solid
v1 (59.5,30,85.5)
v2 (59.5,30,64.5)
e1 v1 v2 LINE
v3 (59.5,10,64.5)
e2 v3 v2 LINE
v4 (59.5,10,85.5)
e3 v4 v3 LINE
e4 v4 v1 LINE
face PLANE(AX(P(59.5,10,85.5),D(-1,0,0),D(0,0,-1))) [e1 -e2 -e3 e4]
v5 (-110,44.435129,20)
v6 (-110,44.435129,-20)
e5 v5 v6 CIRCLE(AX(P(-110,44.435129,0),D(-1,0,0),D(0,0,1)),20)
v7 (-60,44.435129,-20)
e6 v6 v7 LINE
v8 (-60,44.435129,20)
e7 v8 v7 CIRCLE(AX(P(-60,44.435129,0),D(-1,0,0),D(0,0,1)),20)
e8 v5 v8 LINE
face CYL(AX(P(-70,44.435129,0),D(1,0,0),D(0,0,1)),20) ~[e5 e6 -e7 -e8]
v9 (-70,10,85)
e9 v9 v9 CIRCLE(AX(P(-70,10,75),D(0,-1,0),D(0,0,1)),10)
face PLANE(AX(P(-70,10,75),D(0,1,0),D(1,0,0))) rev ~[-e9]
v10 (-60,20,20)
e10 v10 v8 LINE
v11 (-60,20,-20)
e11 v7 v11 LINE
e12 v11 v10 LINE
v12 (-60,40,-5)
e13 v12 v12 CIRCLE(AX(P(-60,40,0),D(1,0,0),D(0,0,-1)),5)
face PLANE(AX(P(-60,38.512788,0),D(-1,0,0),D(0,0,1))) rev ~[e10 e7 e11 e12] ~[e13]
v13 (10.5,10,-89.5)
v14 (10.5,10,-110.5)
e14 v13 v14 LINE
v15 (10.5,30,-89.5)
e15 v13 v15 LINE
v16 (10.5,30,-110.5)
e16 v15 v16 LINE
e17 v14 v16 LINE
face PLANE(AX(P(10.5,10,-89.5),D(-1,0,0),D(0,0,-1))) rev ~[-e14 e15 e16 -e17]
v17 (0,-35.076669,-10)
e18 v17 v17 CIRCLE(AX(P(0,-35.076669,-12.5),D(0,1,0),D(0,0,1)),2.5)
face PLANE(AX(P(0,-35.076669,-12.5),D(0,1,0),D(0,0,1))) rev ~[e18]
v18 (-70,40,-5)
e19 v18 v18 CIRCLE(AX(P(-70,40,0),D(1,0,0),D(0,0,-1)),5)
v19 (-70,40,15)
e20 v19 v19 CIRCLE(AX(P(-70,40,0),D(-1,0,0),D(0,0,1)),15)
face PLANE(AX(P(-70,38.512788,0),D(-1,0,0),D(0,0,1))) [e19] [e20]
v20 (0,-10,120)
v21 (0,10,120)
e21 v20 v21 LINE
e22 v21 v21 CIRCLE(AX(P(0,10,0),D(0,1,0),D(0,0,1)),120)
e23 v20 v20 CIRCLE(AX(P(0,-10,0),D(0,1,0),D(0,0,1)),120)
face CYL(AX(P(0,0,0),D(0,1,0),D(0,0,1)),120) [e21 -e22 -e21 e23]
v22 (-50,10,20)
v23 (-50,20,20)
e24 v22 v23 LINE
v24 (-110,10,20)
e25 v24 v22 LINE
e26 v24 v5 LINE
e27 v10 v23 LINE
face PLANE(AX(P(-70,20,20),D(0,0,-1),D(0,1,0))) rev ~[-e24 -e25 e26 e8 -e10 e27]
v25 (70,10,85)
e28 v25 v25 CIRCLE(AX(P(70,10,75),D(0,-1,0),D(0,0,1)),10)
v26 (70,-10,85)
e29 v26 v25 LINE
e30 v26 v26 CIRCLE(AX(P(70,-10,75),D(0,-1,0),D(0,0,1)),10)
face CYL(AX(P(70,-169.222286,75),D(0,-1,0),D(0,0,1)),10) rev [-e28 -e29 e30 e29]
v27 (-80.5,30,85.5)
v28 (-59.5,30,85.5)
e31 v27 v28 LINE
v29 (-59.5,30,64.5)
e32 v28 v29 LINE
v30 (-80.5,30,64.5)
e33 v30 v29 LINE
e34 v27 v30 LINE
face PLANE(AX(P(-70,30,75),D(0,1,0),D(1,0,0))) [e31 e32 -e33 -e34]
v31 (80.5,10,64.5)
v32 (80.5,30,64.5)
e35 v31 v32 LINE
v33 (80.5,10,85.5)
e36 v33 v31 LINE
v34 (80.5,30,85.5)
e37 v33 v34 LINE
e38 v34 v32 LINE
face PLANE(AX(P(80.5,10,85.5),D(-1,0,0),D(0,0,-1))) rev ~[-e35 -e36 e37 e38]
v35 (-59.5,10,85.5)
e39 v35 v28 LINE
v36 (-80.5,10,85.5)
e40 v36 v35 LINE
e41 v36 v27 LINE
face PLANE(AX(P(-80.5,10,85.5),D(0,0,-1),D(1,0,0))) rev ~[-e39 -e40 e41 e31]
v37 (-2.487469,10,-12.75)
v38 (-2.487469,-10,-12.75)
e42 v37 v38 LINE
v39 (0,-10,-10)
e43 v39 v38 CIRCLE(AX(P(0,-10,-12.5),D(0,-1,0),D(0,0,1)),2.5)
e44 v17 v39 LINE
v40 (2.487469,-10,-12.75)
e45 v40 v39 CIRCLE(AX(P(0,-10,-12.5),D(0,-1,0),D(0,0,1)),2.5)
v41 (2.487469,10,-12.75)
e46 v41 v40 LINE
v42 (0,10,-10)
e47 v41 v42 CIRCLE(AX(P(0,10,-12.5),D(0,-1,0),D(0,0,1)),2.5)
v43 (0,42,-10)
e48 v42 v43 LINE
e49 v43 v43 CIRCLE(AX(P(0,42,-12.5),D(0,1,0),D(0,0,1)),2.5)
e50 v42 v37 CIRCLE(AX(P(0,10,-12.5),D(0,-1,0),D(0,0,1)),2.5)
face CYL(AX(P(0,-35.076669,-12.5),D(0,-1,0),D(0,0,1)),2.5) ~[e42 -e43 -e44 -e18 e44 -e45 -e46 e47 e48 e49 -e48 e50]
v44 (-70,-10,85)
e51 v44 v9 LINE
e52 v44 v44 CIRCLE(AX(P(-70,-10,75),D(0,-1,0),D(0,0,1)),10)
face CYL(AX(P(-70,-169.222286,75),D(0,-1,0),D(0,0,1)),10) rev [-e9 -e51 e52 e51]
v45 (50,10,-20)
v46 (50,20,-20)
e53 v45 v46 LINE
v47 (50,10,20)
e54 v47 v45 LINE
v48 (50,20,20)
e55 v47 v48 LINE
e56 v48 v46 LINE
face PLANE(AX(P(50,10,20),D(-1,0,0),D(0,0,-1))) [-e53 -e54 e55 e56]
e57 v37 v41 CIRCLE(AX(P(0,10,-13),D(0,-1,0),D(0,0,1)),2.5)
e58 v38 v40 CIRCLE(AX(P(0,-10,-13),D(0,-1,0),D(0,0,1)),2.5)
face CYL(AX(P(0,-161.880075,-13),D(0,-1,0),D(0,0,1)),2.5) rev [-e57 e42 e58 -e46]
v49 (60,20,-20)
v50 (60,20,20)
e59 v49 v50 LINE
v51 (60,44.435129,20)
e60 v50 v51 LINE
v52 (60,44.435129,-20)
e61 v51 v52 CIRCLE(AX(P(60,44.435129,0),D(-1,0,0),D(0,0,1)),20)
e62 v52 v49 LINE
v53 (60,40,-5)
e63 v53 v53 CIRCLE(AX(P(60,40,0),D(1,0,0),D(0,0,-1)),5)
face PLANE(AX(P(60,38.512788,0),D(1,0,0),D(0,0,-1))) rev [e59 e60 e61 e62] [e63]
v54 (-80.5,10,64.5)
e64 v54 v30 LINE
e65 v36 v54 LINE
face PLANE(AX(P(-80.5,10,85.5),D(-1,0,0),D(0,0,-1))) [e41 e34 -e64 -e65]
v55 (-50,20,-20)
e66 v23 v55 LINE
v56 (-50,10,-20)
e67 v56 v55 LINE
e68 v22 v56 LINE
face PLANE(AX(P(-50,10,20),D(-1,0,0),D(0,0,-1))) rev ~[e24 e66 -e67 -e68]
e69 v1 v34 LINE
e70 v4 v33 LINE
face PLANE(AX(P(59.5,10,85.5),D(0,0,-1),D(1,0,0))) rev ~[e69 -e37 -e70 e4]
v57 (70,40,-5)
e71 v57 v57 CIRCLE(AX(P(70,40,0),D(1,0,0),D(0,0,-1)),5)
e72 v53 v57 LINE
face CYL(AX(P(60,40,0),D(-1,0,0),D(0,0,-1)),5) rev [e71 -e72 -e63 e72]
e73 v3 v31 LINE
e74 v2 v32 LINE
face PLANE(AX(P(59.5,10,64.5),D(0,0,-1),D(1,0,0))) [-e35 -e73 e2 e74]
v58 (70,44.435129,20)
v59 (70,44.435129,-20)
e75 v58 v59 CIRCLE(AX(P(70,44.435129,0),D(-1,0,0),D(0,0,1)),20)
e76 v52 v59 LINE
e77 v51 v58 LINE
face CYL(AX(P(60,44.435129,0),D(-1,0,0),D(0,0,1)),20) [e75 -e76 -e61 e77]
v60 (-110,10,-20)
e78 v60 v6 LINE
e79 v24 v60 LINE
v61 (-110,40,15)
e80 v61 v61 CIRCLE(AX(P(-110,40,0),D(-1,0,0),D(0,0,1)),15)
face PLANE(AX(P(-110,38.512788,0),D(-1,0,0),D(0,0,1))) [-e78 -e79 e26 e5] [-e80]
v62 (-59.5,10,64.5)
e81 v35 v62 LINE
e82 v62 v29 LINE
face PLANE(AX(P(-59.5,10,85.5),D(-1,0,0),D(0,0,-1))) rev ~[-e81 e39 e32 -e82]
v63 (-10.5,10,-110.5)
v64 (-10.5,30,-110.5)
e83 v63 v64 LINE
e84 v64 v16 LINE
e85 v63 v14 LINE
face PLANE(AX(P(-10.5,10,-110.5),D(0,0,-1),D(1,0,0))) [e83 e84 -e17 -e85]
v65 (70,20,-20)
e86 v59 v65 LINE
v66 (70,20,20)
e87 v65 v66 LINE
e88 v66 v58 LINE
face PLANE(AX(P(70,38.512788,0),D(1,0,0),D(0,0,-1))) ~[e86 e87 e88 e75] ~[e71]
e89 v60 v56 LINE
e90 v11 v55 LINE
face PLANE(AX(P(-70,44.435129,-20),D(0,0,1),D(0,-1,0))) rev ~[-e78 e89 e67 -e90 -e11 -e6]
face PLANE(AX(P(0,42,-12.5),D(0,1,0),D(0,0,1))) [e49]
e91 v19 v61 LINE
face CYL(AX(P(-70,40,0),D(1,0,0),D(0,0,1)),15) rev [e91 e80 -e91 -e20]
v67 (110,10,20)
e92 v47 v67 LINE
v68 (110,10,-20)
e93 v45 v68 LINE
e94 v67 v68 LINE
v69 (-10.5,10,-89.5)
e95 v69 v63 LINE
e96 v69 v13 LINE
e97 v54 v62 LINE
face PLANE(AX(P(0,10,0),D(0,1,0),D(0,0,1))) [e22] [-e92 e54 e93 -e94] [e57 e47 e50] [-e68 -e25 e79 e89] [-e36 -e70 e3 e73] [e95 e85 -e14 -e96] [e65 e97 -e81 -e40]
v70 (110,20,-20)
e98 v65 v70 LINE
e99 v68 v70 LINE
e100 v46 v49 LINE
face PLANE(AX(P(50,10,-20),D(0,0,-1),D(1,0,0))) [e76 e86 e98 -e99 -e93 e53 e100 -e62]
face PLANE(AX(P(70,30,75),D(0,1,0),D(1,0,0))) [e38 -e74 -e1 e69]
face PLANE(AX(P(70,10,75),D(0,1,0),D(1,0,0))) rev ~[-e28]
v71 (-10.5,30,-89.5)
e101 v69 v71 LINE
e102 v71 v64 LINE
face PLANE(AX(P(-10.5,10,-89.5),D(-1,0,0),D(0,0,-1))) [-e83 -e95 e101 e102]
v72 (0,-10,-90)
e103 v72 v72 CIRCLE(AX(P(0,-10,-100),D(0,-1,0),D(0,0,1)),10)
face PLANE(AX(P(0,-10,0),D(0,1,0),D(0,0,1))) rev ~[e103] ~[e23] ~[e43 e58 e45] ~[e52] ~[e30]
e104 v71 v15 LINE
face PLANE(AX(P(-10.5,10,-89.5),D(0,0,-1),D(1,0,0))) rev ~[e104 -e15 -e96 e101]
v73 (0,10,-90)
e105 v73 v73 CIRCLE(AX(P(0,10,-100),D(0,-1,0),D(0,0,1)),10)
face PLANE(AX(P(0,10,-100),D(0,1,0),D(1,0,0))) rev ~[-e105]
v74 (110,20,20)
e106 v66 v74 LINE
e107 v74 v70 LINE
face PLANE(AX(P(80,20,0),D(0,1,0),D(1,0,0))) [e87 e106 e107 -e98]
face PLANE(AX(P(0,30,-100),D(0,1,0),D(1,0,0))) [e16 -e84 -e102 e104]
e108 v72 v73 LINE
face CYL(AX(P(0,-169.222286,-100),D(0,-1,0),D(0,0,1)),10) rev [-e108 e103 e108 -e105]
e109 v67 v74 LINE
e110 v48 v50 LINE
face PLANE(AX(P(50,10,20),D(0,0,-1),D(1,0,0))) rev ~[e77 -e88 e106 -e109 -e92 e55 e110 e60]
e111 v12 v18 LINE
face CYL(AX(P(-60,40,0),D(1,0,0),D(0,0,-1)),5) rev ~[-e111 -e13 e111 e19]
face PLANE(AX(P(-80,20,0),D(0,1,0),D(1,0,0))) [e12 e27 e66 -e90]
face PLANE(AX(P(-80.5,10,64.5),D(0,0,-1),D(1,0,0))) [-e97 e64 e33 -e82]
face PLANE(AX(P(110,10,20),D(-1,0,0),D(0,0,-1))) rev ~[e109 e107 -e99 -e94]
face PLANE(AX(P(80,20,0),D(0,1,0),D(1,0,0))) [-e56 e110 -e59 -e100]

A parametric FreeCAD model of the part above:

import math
import FreeCAD as App
import Part
import Sketcher

V = App.Vector

doc = App.newDocument("Part")
params = doc.addObject("Spreadsheet::Sheet", "Params")
for row, (alias, value) in enumerate([
    ("sketch1_diameter", "240 mm"),
    ("pad1_length", "20 mm"),
    ("sketch2_width", "60 mm"),
    ("sketch2_height", "40 mm"),
    ("pad2_length", "10 mm"),
    ("sketch3_diameter", "5 mm"),
    ("sketch4_diameter", "10 mm"),
    ("sketch4_radius", "20 mm"),
    ("pad3_length", "10 mm"),
    ("sketch5_diameter", "30 mm"),
    ("sketch5_radius", "20 mm"),
    ("pad4_length", "40 mm"),
    ("sketch6_diameter", "20 mm"),
    ("sketch7_width", "21 mm"),
    ("pad5_length", "20 mm"),
    ("sketch8_diameter", "5 mm"),
    ("pad6_length", "42 mm"),
    ("pad6_length2", "35.076669 mm"),
], start=1):
    params.set(f"A{row}", alias)
    params.set(f"B{row}", "=" + value)
    params.setAlias(f"B{row}", alias)

body = doc.addObject("PartDesign::Body", "Body")

sketch1 = body.newObject("Sketcher::SketchObject", "Sketch")
sketch1.AttachmentSupport = (doc.getObject("XZ_Plane"), [""])
sketch1.MapMode = "FlatFace"
sketch1.addGeometry(Part.Circle(V(0, 0, 0), V(0, 0, 1), 120), False)
sketch1.addConstraint([
    Sketcher.Constraint("Coincident", 0, 3, -1, 1),
    Sketcher.Constraint("Diameter", 0, 240.0),
])
sketch1.setExpression("Constraints[1]", "Params.sketch1_diameter")
pad1 = body.newObject("PartDesign::Pad", "Pad")
pad1.Profile = sketch1
pad1.setExpression("Length", "Params.pad1_length")
pad1.Midplane = True

sketch2 = body.newObject("Sketcher::SketchObject", "Sketch001")
sketch2.AttachmentSupport = (doc.getObject("XZ_Plane"), [""])
sketch2.MapMode = "FlatFace"
sketch2.AttachmentOffset = App.Placement(V(0, 0, -10), App.Rotation())
sketch2.addGeometry([
    Part.LineSegment(V(-110, -20, 0), V(-110, 20, 0)),
    Part.LineSegment(V(-110, 20, 0), V(-50, 20, 0)),
    Part.LineSegment(V(-50, 20, 0), V(-50, -20, 0)),
    Part.LineSegment(V(-50, -20, 0), V(-110, -20, 0)),
    Part.LineSegment(V(50, -20, 0), V(50, 20, 0)),
    Part.LineSegment(V(50, 20, 0), V(110, 20, 0)),
    Part.LineSegment(V(110, 20, 0), V(110, -20, 0)),
    Part.LineSegment(V(110, -20, 0), V(50, -20, 0)),
], False)
sketch2.addConstraint([
    Sketcher.Constraint("Coincident", 0, 2, 1, 1),
    Sketcher.Constraint("Coincident", 1, 2, 2, 1),
    Sketcher.Constraint("Coincident", 2, 2, 3, 1),
    Sketcher.Constraint("Coincident", 3, 2, 0, 1),
    Sketcher.Constraint("Coincident", 4, 2, 5, 1),
    Sketcher.Constraint("Coincident", 5, 2, 6, 1),
    Sketcher.Constraint("Coincident", 6, 2, 7, 1),
    Sketcher.Constraint("Coincident", 7, 2, 4, 1),
    Sketcher.Constraint("Vertical", 0),
    Sketcher.Constraint("Horizontal", 1),
    Sketcher.Constraint("Vertical", 2),
    Sketcher.Constraint("Horizontal", 3),
    Sketcher.Constraint("Vertical", 4),
    Sketcher.Constraint("Horizontal", 5),
    Sketcher.Constraint("Vertical", 6),
    Sketcher.Constraint("Horizontal", 7),
    Sketcher.Constraint("Symmetric", 2, 2, 4, 2, -1, 1),
    Sketcher.Constraint("Symmetric", 0, 2, 6, 2, -1, 1),
    Sketcher.Constraint("Horizontal", 1, 2, 4, 2),
    Sketcher.Constraint("DistanceX", 1, 1, 1, 2, 60.0),
    Sketcher.Constraint("DistanceY", 0, 1, 0, 2, 40.0),
    Sketcher.Constraint("DistanceX", 0, 2, -1, 1, 110.0),
])
sketch2.setExpression("Constraints[19]", "Params.sketch2_width")
sketch2.setExpression("Constraints[20]", "Params.sketch2_height")
pad2 = body.newObject("PartDesign::Pad", "Pad001")
pad2.Profile = sketch2
pad2.setExpression("Length", "Params.pad2_length")
pad2.Reversed = True

sketch3 = body.newObject("Sketcher::SketchObject", "Sketch002")
sketch3.AttachmentSupport = (doc.getObject("XZ_Plane"), [""])
sketch3.MapMode = "FlatFace"
sketch3.AttachmentOffset = App.Placement(V(0, 0, -10), App.Rotation())
sketch3.addGeometry(Part.Circle(V(0, -13, 0), V(0, 0, 1), 2.5), False)
sketch3.addConstraint([
    Sketcher.Constraint("PointOnObject", 0, 3, -2),
    Sketcher.Constraint("Diameter", 0, 5.0),
    Sketcher.Constraint("DistanceY", 0, 3, -1, 1, 13.0),
])
sketch3.setExpression("Constraints[1]", "Params.sketch3_diameter")
pocket1 = body.newObject("PartDesign::Pocket", "Pocket")
pocket1.Profile = sketch3
pocket1.Type = "ThroughAll"
pocket1.Midplane = True

sketch4 = body.newObject("Sketcher::SketchObject", "Sketch003")
sketch4.AttachmentSupport = (doc.getObject("YZ_Plane"), [""])
sketch4.MapMode = "FlatFace"
sketch4.AttachmentOffset = App.Placement(V(0, 0, -60), App.Rotation())
sketch4.addGeometry([
    Part.ArcOfCircle(Part.Circle(V(44, 0, 0), V(0, 0, 1), 20), math.radians(-90), math.radians(90)),
    Part.LineSegment(V(44, 20, 0), V(20, 20, 0)),
    Part.LineSegment(V(20, 20, 0), V(20, -20, 0)),
    Part.LineSegment(V(20, -20, 0), V(44, -20, 0)),
    Part.Circle(V(40, 0, 0), V(0, 0, 1), 5),
], False)
sketch4.addConstraint([
    Sketcher.Constraint("Tangent", 0, 2, 1, 1),
    Sketcher.Constraint("Coincident", 1, 2, 2, 1),
    Sketcher.Constraint("Coincident", 2, 2, 3, 1),
    Sketcher.Constraint("Tangent", 3, 2, 0, 1),
    Sketcher.Constraint("Horizontal", 1),
    Sketcher.Constraint("Vertical", 2),
    Sketcher.Constraint("Horizontal", 3),
    Sketcher.Constraint("PointOnObject", 0, 3, -1),
    Sketcher.Constraint("PointOnObject", 4, 3, -1),
    Sketcher.Constraint("Diameter", 4, 10.0),
    Sketcher.Constraint("Radius", 0, 20.0),
    Sketcher.Constraint("DistanceX", -1, 1, 4, 3, 40.0),
    Sketcher.Constraint("DistanceX", -1, 1, 1, 2, 20.0),
    Sketcher.Constraint("DistanceX", 1, 2, 1, 1, 24.435129),
])
sketch4.setExpression("Constraints[9]", "Params.sketch4_diameter")
sketch4.setExpression("Constraints[10]", "Params.sketch4_radius")
pad3 = body.newObject("PartDesign::Pad", "Pad002")
pad3.Profile = sketch4
pad3.setExpression("Length", "Params.pad3_length")
pad3.Reversed = True

sketch5 = body.newObject("Sketcher::SketchObject", "Sketch004")
sketch5.AttachmentSupport = (doc.getObject("YZ_Plane"), [""])
sketch5.MapMode = "FlatFace"
sketch5.AttachmentOffset = App.Placement(V(0, 0, -70), App.Rotation())
sketch5.addGeometry([
    Part.LineSegment(V(20, -20, 0), V(20, 20, 0)),
    Part.LineSegment(V(20, 20, 0), V(44, 20, 0)),
    Part.ArcOfCircle(Part.Circle(V(44, 0, 0), V(0, 0, 1), 20), math.radians(-90), math.radians(90)),
    Part.LineSegment(V(44, -20, 0), V(20, -20, 0)),
    Part.Circle(V(40, 0, 0), V(0, 0, 1), 15),
], False)
sketch5.addConstraint([
    Sketcher.Constraint("Coincident", 0, 2, 1, 1),
    Sketcher.Constraint("Tangent", 1, 2, 2, 2),
    Sketcher.Constraint("Tangent", 2, 1, 3, 1),
    Sketcher.Constraint("Coincident", 3, 2, 0, 1),
    Sketcher.Constraint("Vertical", 0),
    Sketcher.Constraint("Horizontal", 1),
    Sketcher.Constraint("Horizontal", 3),
    Sketcher.Constraint("PointOnObject", 2, 3, -1),
    Sketcher.Constraint("PointOnObject", 4, 3, -1),
    Sketcher.Constraint("Diameter", 4, 30.0),
    Sketcher.Constraint("Radius", 2, 20.0),
    Sketcher.Constraint("DistanceX", -1, 1, 4, 3, 40.0),
    Sketcher.Constraint("DistanceX", -1, 1, 0, 2, 20.0),
    Sketcher.Constraint("DistanceX", 1, 1, 1, 2, 24.435129),
])
sketch5.setExpression("Constraints[9]", "Params.sketch5_diameter")
sketch5.setExpression("Constraints[10]", "Params.sketch5_radius")
pad4 = body.newObject("PartDesign::Pad", "Pad003")
pad4.Profile = sketch5
pad4.setExpression("Length", "Params.pad4_length")
pad4.Reversed = True
doc.recompute()

mirrored = body.newObject("PartDesign::Mirrored", "Mirrored")
mirrored.Originals = [pad3]
mirrored.MirrorPlane = (doc.getObject("YZ_Plane"), [""])
body.Tip = mirrored

sketch6 = body.newObject("Sketcher::SketchObject", "Sketch005")
sketch6.AttachmentSupport = (doc.getObject("XZ_Plane"), [""])
sketch6.MapMode = "FlatFace"
sketch6.AttachmentOffset = App.Placement(V(0, 0, -10), App.Rotation())
sketch6.addGeometry([
    Part.Circle(V(0, -100, 0), V(0, 0, 1), 10),
    Part.Circle(V(-70, 75, 0), V(0, 0, 1), 10),
    Part.Circle(V(70, 75, 0), V(0, 0, 1), 10),
], False)
sketch6.addConstraint([
    Sketcher.Constraint("Equal", 0, 1),
    Sketcher.Constraint("Equal", 1, 2),
    Sketcher.Constraint("Symmetric", 1, 3, 2, 3, -2),
    Sketcher.Constraint("PointOnObject", 0, 3, -2),
    Sketcher.Constraint("Diameter", 0, 20.0),
    Sketcher.Constraint("DistanceY", 0, 3, -1, 1, 100.0),
    Sketcher.Constraint("DistanceX", 1, 3, -1, 1, 70.0),
    Sketcher.Constraint("DistanceY", -1, 1, 1, 3, 75.0),
])
sketch6.setExpression("Constraints[4]", "Params.sketch6_diameter")
pocket2 = body.newObject("PartDesign::Pocket", "Pocket001")
pocket2.Profile = sketch6
pocket2.Type = "ThroughAll"
pocket2.Midplane = True

sketch7 = body.newObject("Sketcher::SketchObject", "Sketch006")
sketch7.AttachmentSupport = (doc.getObject("XZ_Plane"), [""])
sketch7.MapMode = "FlatFace"
sketch7.AttachmentOffset = App.Placement(V(0, 0, -10), App.Rotation())
sketch7.addGeometry([
    Part.LineSegment(V(-80, 64, 0), V(-80, 86, 0)),
    Part.LineSegment(V(-80, 86, 0), V(-60, 86, 0)),
    Part.LineSegment(V(-60, 86, 0), V(-60, 64, 0)),
    Part.LineSegment(V(-60, 64, 0), V(-80, 64, 0)),
    Part.LineSegment(V(-10, -110, 0), V(-10, -90, 0)),
    Part.LineSegment(V(-10, -90, 0), V(10, -90, 0)),
    Part.LineSegment(V(10, -90, 0), V(10, -110, 0)),
    Part.LineSegment(V(10, -110, 0), V(-10, -110, 0)),
    Part.LineSegment(V(60, 64, 0), V(60, 86, 0)),
    Part.LineSegment(V(60, 86, 0), V(80, 86, 0)),
    Part.LineSegment(V(80, 86, 0), V(80, 64, 0)),
    Part.LineSegment(V(80, 64, 0), V(60, 64, 0)),
], False)
sketch7.addConstraint([
    Sketcher.Constraint("Coincident", 0, 2, 1, 1),
    Sketcher.Constraint("Coincident", 1, 2, 2, 1),
    Sketcher.Constraint("Coincident", 2, 2, 3, 1),
    Sketcher.Constraint("Coincident", 3, 2, 0, 1),
    Sketcher.Constraint("Coincident", 4, 2, 5, 1),
    Sketcher.Constraint("Coincident", 5, 2, 6, 1),
    Sketcher.Constraint("Coincident", 6, 2, 7, 1),
    Sketcher.Constraint("Coincident", 7, 2, 4, 1),
    Sketcher.Constraint("Coincident", 8, 2, 9, 1),
    Sketcher.Constraint("Coincident", 9, 2, 10, 1),
    Sketcher.Constraint("Coincident", 10, 2, 11, 1),
    Sketcher.Constraint("Coincident", 11, 2, 8, 1),
    Sketcher.Constraint("Vertical", 0),
    Sketcher.Constraint("Horizontal", 1),
    Sketcher.Constraint("Vertical", 2),
    Sketcher.Constraint("Horizontal", 3),
    Sketcher.Constraint("Vertical", 4),
    Sketcher.Constraint("Horizontal", 5),
    Sketcher.Constraint("Vertical", 6),
    Sketcher.Constraint("Horizontal", 7),
    Sketcher.Constraint("Vertical", 8),
    Sketcher.Constraint("Horizontal", 9),
    Sketcher.Constraint("Vertical", 10),
    Sketcher.Constraint("Horizontal", 11),
    Sketcher.Constraint("Symmetric", 1, 2, 8, 2, -2),
    Sketcher.Constraint("Symmetric", 3, 2, 10, 2, -2),
    Sketcher.Constraint("Equal", 3, 5),
    Sketcher.Constraint("Equal", 11, 0),
    Sketcher.Constraint("Equal", 2, 4),
    Sketcher.Constraint("DistanceX", 1, 1, 1, 2, 21.0),
    Sketcher.Constraint("DistanceX", 2, 2, 4, 2, 49.0),
    Sketcher.Constraint("DistanceY", 4, 2, 2, 2, 154.0),
    Sketcher.Constraint("DistanceX", 1, 2, 8, 2, 119.0),
    Sketcher.Constraint("DistanceY", -1, 1, 0, 2, 85.5),
])
sketch7.setExpression("Constraints[29]", "Params.sketch7_width")
pad5 = body.newObject("PartDesign::Pad", "Pad004")
pad5.Profile = sketch7
pad5.setExpression("Length", "Params.pad5_length")
pad5.Reversed = True

sketch8 = body.newObject("Sketcher::SketchObject", "Sketch007")
sketch8.AttachmentSupport = (doc.getObject("XZ_Plane"), [""])
sketch8.MapMode = "FlatFace"
sketch8.addGeometry(Part.Circle(V(0, -12.5, 0), V(0, 0, 1), 2.5), False)
sketch8.addConstraint([
    Sketcher.Constraint("PointOnObject", 0, 3, -2),
    Sketcher.Constraint("Diameter", 0, 5.0),
    Sketcher.Constraint("DistanceY", 0, 3, -1, 1, 12.5),
])
sketch8.setExpression("Constraints[1]", "Params.sketch8_diameter")
pad6 = body.newObject("PartDesign::Pad", "Pad005")
pad6.Profile = sketch8
pad6.Type = "TwoLengths"
pad6.setExpression("Length", "Params.pad6_length")
pad6.setExpression("Length2", "Params.pad6_length2")
pad6.Reversed = True

doc.recompute()
